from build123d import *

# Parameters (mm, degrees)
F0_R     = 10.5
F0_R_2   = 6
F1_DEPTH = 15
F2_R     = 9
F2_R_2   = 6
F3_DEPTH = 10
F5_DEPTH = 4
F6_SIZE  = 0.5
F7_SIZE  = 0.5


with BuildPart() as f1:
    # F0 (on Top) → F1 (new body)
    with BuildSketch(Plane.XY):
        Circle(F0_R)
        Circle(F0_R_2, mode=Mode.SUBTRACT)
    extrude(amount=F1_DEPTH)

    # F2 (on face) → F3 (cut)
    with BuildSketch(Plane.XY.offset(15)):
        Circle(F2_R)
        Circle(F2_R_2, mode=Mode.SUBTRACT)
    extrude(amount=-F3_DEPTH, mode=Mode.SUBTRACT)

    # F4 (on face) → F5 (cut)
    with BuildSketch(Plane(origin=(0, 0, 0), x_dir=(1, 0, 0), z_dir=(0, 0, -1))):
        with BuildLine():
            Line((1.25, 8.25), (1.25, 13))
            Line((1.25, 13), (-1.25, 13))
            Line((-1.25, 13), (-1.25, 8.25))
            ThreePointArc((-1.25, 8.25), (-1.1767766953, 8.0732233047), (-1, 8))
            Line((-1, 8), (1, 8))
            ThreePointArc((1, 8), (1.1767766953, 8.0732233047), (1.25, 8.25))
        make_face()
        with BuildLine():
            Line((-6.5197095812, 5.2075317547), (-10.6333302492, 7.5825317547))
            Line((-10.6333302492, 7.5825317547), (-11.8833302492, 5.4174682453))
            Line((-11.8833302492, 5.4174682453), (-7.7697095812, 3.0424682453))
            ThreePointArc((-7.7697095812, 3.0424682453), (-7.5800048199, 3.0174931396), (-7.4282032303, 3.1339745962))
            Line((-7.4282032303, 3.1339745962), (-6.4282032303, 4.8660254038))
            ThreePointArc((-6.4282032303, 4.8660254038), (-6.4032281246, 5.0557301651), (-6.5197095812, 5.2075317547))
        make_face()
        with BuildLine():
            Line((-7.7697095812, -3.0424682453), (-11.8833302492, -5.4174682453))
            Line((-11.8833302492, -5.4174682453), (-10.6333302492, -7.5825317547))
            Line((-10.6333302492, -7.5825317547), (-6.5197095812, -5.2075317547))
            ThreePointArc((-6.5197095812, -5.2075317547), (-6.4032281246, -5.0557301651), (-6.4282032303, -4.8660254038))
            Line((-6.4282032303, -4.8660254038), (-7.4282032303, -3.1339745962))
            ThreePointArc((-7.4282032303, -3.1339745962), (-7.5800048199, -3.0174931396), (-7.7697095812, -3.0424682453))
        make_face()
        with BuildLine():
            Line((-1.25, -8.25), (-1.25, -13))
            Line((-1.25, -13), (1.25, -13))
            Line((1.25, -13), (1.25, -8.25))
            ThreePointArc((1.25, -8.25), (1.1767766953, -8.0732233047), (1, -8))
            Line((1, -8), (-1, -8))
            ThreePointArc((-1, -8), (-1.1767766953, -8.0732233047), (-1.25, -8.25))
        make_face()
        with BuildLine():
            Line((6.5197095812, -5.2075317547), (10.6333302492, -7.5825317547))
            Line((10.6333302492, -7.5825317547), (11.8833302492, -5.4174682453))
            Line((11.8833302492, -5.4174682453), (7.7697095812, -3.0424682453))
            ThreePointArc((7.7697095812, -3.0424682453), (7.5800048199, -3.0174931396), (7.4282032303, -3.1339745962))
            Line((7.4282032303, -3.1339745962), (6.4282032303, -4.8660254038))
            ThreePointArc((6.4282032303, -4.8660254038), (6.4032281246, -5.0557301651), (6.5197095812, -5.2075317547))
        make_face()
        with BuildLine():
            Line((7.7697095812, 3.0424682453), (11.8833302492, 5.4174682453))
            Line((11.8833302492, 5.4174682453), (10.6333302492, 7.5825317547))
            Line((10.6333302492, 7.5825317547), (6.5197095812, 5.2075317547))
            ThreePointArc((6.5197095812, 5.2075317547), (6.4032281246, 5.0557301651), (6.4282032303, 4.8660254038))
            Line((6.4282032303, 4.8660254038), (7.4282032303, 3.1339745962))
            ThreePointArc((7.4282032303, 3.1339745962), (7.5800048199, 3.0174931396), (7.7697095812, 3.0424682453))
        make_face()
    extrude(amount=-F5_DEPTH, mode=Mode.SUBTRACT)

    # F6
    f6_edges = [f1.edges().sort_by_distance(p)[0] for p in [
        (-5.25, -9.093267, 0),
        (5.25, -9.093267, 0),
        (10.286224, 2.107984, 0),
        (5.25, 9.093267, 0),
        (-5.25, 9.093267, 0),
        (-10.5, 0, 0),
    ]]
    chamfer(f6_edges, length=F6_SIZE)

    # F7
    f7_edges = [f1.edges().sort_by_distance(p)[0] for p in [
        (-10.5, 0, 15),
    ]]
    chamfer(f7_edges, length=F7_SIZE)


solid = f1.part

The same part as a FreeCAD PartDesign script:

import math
import FreeCAD as App
import Part
import Sketcher
Q = App.Units.Quantity


def edges_at(feature, points):
    """Names of the edges that pass closest to the given points."""
    edges = feature.Shape.Edges
    near = lambda p: min(range(len(edges)), key=lambda i: edges[i].distToShape(Part.Vertex(*p))[0])
    return sorted({f"Edge{near(p) + 1}" for p in points})

doc = App.newDocument("Part")
body = doc.addObject("PartDesign::Body", "Body")

sketch1 = body.newObject("Sketcher::SketchObject", "Sketch")
sketch1.AttachmentSupport = (doc.getObject("XY_Plane"), [""])
sketch1.MapMode = "FlatFace"
sketch1.addGeometry(Part.Circle(App.Vector(0, 0, 0), App.Vector(0, 0, 1), 10.5), False)
sketch1.addGeometry(Part.Circle(App.Vector(0, 0, 0), App.Vector(0, 0, 1), 6), False)
sketch1.addConstraint(Sketcher.Constraint("Coincident", 0, 3, -1, 1))
sketch1.addConstraint(Sketcher.Constraint("Coincident", 1, 3, -1, 1))
sketch1.addConstraint(Sketcher.Constraint("Diameter", 0, 21.0))
sketch1.addConstraint(Sketcher.Constraint("Diameter", 1, 12.0))
pad1 = body.newObject("PartDesign::Pad", "Pad")
pad1.Profile = sketch1
pad1.Length = 15

sketch2 = body.newObject("Sketcher::SketchObject", "Sketch001")
sketch2.AttachmentSupport = (doc.getObject("XY_Plane"), [""])
sketch2.MapMode = "FlatFace"
sketch2.AttachmentOffset = App.Placement(App.Vector(0, 0, 15), App.Rotation())
sketch2.addGeometry(Part.Circle(App.Vector(0, 0, 0), App.Vector(0, 0, 1), 9), False)
sketch2.addGeometry(Part.Circle(App.Vector(0, 0, 0), App.Vector(0, 0, 1), 6), False)
sketch2.addConstraint(Sketcher.Constraint("Coincident", 0, 3, -1, 1))
sketch2.addConstraint(Sketcher.Constraint("Coincident", 1, 3, -1, 1))
sketch2.addConstraint(Sketcher.Constraint("Diameter", 0, 18.0))
sketch2.addConstraint(Sketcher.Constraint("Diameter", 1, 12.0))
pocket1 = body.newObject("PartDesign::Pocket", "Pocket")
pocket1.Profile = sketch2
pocket1.Length = 10

sketch3 = body.newObject("Sketcher::SketchObject", "Sketch002")
sketch3.AttachmentSupport = (doc.getObject("XY_Plane"), [""])
sketch3.MapMode = "FlatFace"
sketch3.addGeometry(Part.LineSegment(App.Vector(1.25, -8.25, 0), App.Vector(1.25, -13, 0)), False)
sketch3.addGeometry(Part.LineSegment(App.Vector(1.25, -13, 0), App.Vector(-1.25, -13, 0)), False)
sketch3.addGeometry(Part.LineSegment(App.Vector(-1.25, -13, 0), App.Vector(-1.25, -8.25, 0)), False)
sketch3.addGeometry(Part.ArcOfCircle(Part.Circle(App.Vector(-1, -8.25, 0), App.Vector(0, 0, 1), 0.25), math.radians(90), math.radians(180)), False)
sketch3.addGeometry(Part.LineSegment(App.Vector(-1, -8, 0), App.Vector(1, -8, 0)), False)
sketch3.addGeometry(Part.ArcOfCircle(Part.Circle(App.Vector(1, -8.25, 0), App.Vector(0, 0, 1), 0.25), math.radians(0), math.radians(90)), False)
sketch3.addGeometry(Part.LineSegment(App.Vector(-6.51971, -5.207532, 0), App.Vector(-10.63333, -7.582532, 0)), False)
sketch3.addGeometry(Part.LineSegment(App.Vector(-10.63333, -7.582532, 0), App.Vector(-11.88333, -5.417468, 0)), False)
sketch3.addGeometry(Part.LineSegment(App.Vector(-11.88333, -5.417468, 0), App.Vector(-7.76971, -3.042468, 0)), False)
sketch3.addGeometry(Part.ArcOfCircle(Part.Circle(App.Vector(-7.64471, -3.258975, 0), App.Vector(0, 0, 1), 0.25), math.radians(30), math.radians(120)), False)
sketch3.addGeometry(Part.LineSegment(App.Vector(-7.428203, -3.133975, 0), App.Vector(-6.428203, -4.866025, 0)), False)
sketch3.addGeometry(Part.ArcOfCircle(Part.Circle(App.Vector(-6.64471, -4.991025, 0), App.Vector(0, 0, 1), 0.25), math.radians(-60), math.radians(30)), False)
sketch3.addGeometry(Part.LineSegment(App.Vector(-7.76971, 3.042468, 0), App.Vector(-11.88333, 5.417468, 0)), False)
sketch3.addGeometry(Part.LineSegment(App.Vector(-11.88333, 5.417468, 0), App.Vector(-10.63333, 7.582532, 0)), False)
sketch3.addGeometry(Part.LineSegment(App.Vector(-10.63333, 7.582532, 0), App.Vector(-6.51971, 5.207532, 0)), False)
sketch3.addGeometry(Part.ArcOfCircle(Part.Circle(App.Vector(-6.64471, 4.991025, 0), App.Vector(0, 0, 1), 0.25), math.radians(-30), math.radians(60)), False)
sketch3.addGeometry(Part.LineSegment(App.Vector(-6.428203, 4.866025, 0), App.Vector(-7.428203, 3.133975, 0)), False)
sketch3.addGeometry(Part.ArcOfCircle(Part.Circle(App.Vector(-7.64471, 3.258975, 0), App.Vector(0, 0, 1), 0.25), math.radians(-120), math.radians(-30)), False)
sketch3.addGeometry(Part.LineSegment(App.Vector(-1.25, 8.25, 0), App.Vector(-1.25, 13, 0)), False)
sketch3.addGeometry(Part.LineSegment(App.Vector(-1.25, 13, 0), App.Vector(1.25, 13, 0)), False)
sketch3.addGeometry(Part.LineSegment(App.Vector(1.25, 13, 0), App.Vector(1.25, 8.25, 0)), False)
sketch3.addGeometry(Part.ArcOfCircle(Part.Circle(App.Vector(1, 8.25, 0), App.Vector(0, 0, 1), 0.25), math.radians(-90), math.radians(0)), False)
sketch3.addGeometry(Part.LineSegment(App.Vector(1, 8, 0), App.Vector(-1, 8, 0)), False)
sketch3.addGeometry(Part.ArcOfCircle(Part.Circle(App.Vector(-1, 8.25, 0), App.Vector(0, 0, 1), 0.25), math.radians(180), math.radians(270)), False)
sketch3.addGeometry(Part.LineSegment(App.Vector(6.51971, 5.207532, 0), App.Vector(10.63333, 7.582532, 0)), False)
sketch3.addGeometry(Part.LineSegment(App.Vector(10.63333, 7.582532, 0), App.Vector(11.88333, 5.417468, 0)), False)
sketch3.addGeometry(Part.LineSegment(App.Vector(11.88333, 5.417468, 0), App.Vector(7.76971, 3.042468, 0)), False)
sketch3.addGeometry(Part.ArcOfCircle(Part.Circle(App.Vector(7.64471, 3.258975, 0), App.Vector(0, 0, 1), 0.25), math.radians(-150), math.radians(-60)), False)
sketch3.addGeometry(Part.LineSegment(App.Vector(7.428203, 3.133975, 0), App.Vector(6.428203, 4.866025, 0)), False)
sketch3.addGeometry(Part.ArcOfCircle(Part.Circle(App.Vector(6.64471, 4.991025, 0), App.Vector(0, 0, 1), 0.25), math.radians(120), math.radians(210)), False)
sketch3.addGeometry(Part.LineSegment(App.Vector(7.76971, -3.042468, 0), App.Vector(11.88333, -5.417468, 0)), False)
sketch3.addGeometry(Part.LineSegment(App.Vector(11.88333, -5.417468, 0), App.Vector(10.63333, -7.582532, 0)), False)
sketch3.addGeometry(Part.LineSegment(App.Vector(10.63333, -7.582532, 0), App.Vector(6.51971, -5.207532, 0)), False)
sketch3.addGeometry(Part.ArcOfCircle(Part.Circle(App.Vector(6.64471, -4.991025, 0), App.Vector(0, 0, 1), 0.25), math.radians(150), math.radians(240)), False)
sketch3.addGeometry(Part.LineSegment(App.Vector(6.428203, -4.866025, 0), App.Vector(7.428203, -3.133975, 0)), False)
sketch3.addGeometry(Part.ArcOfCircle(Part.Circle(App.Vector(7.64471, -3.258975, 0), App.Vector(0, 0, 1), 0.25), math.radians(60), math.radians(150)), False)
sketch3.addConstraint(Sketcher.Constraint("Coincident", 0, 2, 1, 1))
sketch3.addConstraint(Sketcher.Constraint("Coincident", 1, 2, 2, 1))
sketch3.addConstraint(Sketcher.Constraint("Tangent", 2, 2, 3, 2))
sketch3.addConstraint(Sketcher.Constraint("Tangent", 3, 1, 4, 1))
sketch3.addConstraint(Sketcher.Constraint("Tangent", 4, 2, 5, 2))
sketch3.addConstraint(Sketcher.Constraint("Tangent", 5, 1, 0, 1))
sketch3.addConstraint(Sketcher.Constraint("Coincident", 6, 2, 7, 1))
sketch3.addConstraint(Sketcher.Constraint("Coincident", 7, 2, 8, 1))
sketch3.addConstraint(Sketcher.Constraint("Tangent", 8, 2, 9, 2))
sketch3.addConstraint(Sketcher.Constraint("Tangent", 9, 1, 10, 1))
sketch3.addConstraint(Sketcher.Constraint("Tangent", 10, 2, 11, 2))
sketch3.addConstraint(Sketcher.Constraint("Tangent", 11, 1, 6, 1))
sketch3.addConstraint(Sketcher.Constraint("Coincident", 12, 2, 13, 1))
sketch3.addConstraint(Sketcher.Constraint("Coincident", 13, 2, 14, 1))
sketch3.addConstraint(Sketcher.Constraint("Tangent", 14, 2, 15, 2))
sketch3.addConstraint(Sketcher.Constraint("Tangent", 15, 1, 16, 1))
sketch3.addConstraint(Sketcher.Constraint("Tangent", 16, 2, 17, 2))
sketch3.addConstraint(Sketcher.Constraint("Tangent", 17, 1, 12, 1))
sketch3.addConstraint(Sketcher.Constraint("Coincident", 18, 2, 19, 1))
sketch3.addConstraint(Sketcher.Constraint("Coincident", 19, 2, 20, 1))
sketch3.addConstraint(Sketcher.Constraint("Tangent", 20, 2, 21, 2))
sketch3.addConstraint(Sketcher.Constraint("Tangent", 21, 1, 22, 1))
sketch3.addConstraint(Sketcher.Constraint("Tangent", 22, 2, 23, 2))
sketch3.addConstraint(Sketcher.Constraint("Tangent", 23, 1, 18, 1))
sketch3.addConstraint(Sketcher.Constraint("Coincident", 24, 2, 25, 1))
sketch3.addConstraint(Sketcher.Constraint("Coincident", 25, 2, 26, 1))
sketch3.addConstraint(Sketcher.Constraint("Tangent", 26, 2, 27, 2))
sketch3.addConstraint(Sketcher.Constraint("Tangent", 27, 1, 28, 1))
sketch3.addConstraint(Sketcher.Constraint("Tangent", 28, 2, 29, 2))
sketch3.addConstraint(Sketcher.Constraint("Tangent", 29, 1, 24, 1))
sketch3.addConstraint(Sketcher.Constraint("Coincident", 30, 2, 31, 1))
sketch3.addConstraint(Sketcher.Constraint("Coincident", 31, 2, 32, 1))
sketch3.addConstraint(Sketcher.Constraint("Tangent", 32, 2, 33, 2))
sketch3.addConstraint(Sketcher.Constraint("Tangent", 33, 1, 34, 1))
sketch3.addConstraint(Sketcher.Constraint("Tangent", 34, 2, 35, 2))
sketch3.addConstraint(Sketcher.Constraint("Tangent", 35, 1, 30, 1))
sketch3.addConstraint(Sketcher.Constraint("Vertical", 0))
sketch3.addConstraint(Sketcher.Constraint("Horizontal", 1))
sketch3.addConstraint(Sketcher.Constraint("Vertical", 2))
sketch3.addConstraint(Sketcher.Constraint("Horizontal", 4))
sketch3.addConstraint(Sketcher.Constraint("Vertical", 18))
sketch3.addConstraint(Sketcher.Constraint("Horizontal", 19))
sketch3.addConstraint(Sketcher.Constraint("Vertical", 20))
sketch3.addConstraint(Sketcher.Constraint("Horizontal", 22))
sketch3.addConstraint(Sketcher.Constraint("Equal", 3, 5))
sketch3.addConstraint(Sketcher.Constraint("Equal", 5, 9))
sketch3.addConstraint(Sketcher.Constraint("Equal", 9, 11))
sketch3.addConstraint(Sketcher.Constraint("Equal", 11, 15))
sketch3.addConstraint(Sketcher.Constraint("Equal", 15, 17))
sketch3.addConstraint(Sketcher.Constraint("Equal", 17, 21))
sketch3.addConstraint(Sketcher.Constraint("Equal", 21, 23))
sketch3.addConstraint(Sketcher.Constraint("Equal", 23, 27))
sketch3.addConstraint(Sketcher.Constraint("Equal", 27, 29))
sketch3.addConstraint(Sketcher.Constraint("Equal", 29, 33))
sketch3.addConstraint(Sketcher.Constraint("Equal", 33, 35))
sketch3.addConstraint(Sketcher.Constraint("Symmetric", 3, 3, 21, 3, -1, 1))
sketch3.addConstraint(Sketcher.Constraint("Symmetric", 9, 3, 27, 3, -1, 1))
sketch3.addConstraint(Sketcher.Constraint("Symmetric", 11, 3, 29, 3, -1, 1))
sketch3.addConstraint(Sketcher.Constraint("Symmetric", 15, 3, 33, 3, -1, 1))
sketch3.addConstraint(Sketcher.Constraint("Symmetric", 17, 3, 35, 3, -1, 1))
sketch3.addConstraint(Sketcher.Constraint("Symmetric", 0, 2, 18, 2, -1, 1))
sketch3.addConstraint(Sketcher.Constraint("Symmetric", 6, 2, 24, 2, -1, 1))
sketch3.addConstraint(Sketcher.Constraint("Symmetric", 7, 2, 25, 2, -1, 1))
sketch3.addConstraint(Sketcher.Constraint("Symmetric", 12, 2, 30, 2, -1, 1))
sketch3.addConstraint(Sketcher.Constraint("Symmetric", 13, 2, 31, 2, -1, 1))
sketch3.addConstraint(Sketcher.Constraint("Symmetric", 17, 3, 27, 3, -2))
sketch3.addConstraint(Sketcher.Constraint("Symmetric", 15, 3, 29, 3, -2))
sketch3.addConstraint(Sketcher.Constraint("Symmetric", 13, 2, 24, 2, -2))
sketch3.addConstraint(Sketcher.Constraint("Symmetric", 12, 2, 25, 2, -2))
sketch3.addConstraint(Sketcher.Constraint("Perpendicular", 6, 7))
sketch3.addConstraint(Sketcher.Constraint("Perpendicular", 7, 8))
sketch3.addConstraint(Sketcher.Constraint("Perpendicular", 8, 10))
sketch3.addConstraint(Sketcher.Constraint("Vertical", 5, 3, 21, 3))
sketch3.addConstraint(Sketcher.Constraint("DistanceX", 4, 1, 4, 2, 2.0))
sketch3.addConstraint(Sketcher.Constraint("Angle", 6, Q("-150 deg")))
sketch3.addConstraint(Sketcher.Constraint("Radius", 3, 0.25))
sketch3.addConstraint(Sketcher.Constraint("Distance", 10, 2.0))
sketch3.addConstraint(Sketcher.Constraint("DistanceY", 0, 2, -1, 1, 13.0))
sketch3.addConstraint(Sketcher.Constraint("DistanceY", 3, 1, -1, 1, 8.0))
sketch3.addConstraint(Sketcher.Constraint("Distance", 6, 4.75))
sketch3.addConstraint(Sketcher.Constraint("DistanceY", 9, 3, 15, 3, 8.25))
sketch3.addConstraint(Sketcher.Constraint("DistanceX", 9, 3, -1, 1, 7.64471))
pocket2 = body.newObject("PartDesign::Pocket", "Pocket001")
pocket2.Profile = sketch3
pocket2.Length = 4
pocket2.Reversed = True
doc.recompute()

chamfer = body.newObject("PartDesign::Chamfer", "Chamfer")
chamfer.Base = (pocket2, edges_at(pocket2, [
    (-5.25, -9.093, 0),
    (5.25, -9.093, 0),
    (10.286, 2.108, 0),
    (5.25, 9.093, 0),
    (-5.25, 9.093, 0),
    (-10.5, 0, 0),
]))
chamfer.Size = 0.5
doc.recompute()

chamfer2 = body.newObject("PartDesign::Chamfer", "Chamfer001")
chamfer2.Base = (chamfer, edges_at(chamfer, [(-10.5, 0, 15)]))
chamfer2.Size = 0.5

doc.recompute()
